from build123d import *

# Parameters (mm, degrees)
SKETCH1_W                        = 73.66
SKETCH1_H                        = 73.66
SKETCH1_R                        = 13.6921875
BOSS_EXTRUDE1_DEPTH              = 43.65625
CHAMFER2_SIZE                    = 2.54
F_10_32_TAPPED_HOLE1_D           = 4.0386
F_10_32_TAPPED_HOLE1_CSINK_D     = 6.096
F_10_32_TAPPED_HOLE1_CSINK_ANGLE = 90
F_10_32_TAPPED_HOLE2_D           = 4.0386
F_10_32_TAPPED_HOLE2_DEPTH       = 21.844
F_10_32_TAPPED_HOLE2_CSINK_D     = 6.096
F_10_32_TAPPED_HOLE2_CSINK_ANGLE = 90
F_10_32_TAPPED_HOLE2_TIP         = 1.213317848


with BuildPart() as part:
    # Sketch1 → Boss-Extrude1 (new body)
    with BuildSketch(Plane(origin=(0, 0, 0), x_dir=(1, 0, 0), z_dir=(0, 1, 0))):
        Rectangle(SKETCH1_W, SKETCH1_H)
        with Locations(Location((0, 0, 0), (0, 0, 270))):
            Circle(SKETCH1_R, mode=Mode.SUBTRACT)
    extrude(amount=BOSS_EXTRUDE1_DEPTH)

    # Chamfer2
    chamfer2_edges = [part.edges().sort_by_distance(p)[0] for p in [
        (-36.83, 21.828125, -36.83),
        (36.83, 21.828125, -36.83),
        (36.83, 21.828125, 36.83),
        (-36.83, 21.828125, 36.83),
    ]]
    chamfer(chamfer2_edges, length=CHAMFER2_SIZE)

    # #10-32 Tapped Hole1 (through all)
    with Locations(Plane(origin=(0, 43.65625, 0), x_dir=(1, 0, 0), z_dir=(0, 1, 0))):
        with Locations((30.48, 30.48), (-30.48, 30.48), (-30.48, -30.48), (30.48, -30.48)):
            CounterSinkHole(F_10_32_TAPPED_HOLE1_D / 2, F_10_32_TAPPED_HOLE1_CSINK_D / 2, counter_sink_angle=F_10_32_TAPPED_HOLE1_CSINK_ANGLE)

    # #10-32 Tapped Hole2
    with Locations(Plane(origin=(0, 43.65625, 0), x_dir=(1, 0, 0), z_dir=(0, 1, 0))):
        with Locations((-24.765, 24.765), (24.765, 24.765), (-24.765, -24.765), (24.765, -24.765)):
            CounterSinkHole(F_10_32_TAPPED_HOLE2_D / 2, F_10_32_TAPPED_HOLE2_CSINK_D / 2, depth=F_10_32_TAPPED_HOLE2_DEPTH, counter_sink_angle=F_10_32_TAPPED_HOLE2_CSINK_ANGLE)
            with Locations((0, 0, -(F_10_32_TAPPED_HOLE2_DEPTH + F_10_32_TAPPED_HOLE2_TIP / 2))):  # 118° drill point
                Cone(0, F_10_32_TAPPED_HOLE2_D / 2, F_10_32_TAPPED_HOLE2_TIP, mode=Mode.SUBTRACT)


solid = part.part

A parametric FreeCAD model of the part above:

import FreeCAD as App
import Part
import Sketcher
from FreeCAD import Vector
Q = App.Units.Quantity


def edges_at(feature, points):
    """Names of the edges that pass closest to the given points."""
    edges = feature.Shape.Edges
    near = lambda p: min(range(len(edges)), key=lambda i: edges[i].distToShape(Part.Vertex(*p))[0])
    return sorted({f"Edge{near(p) + 1}" for p in points})

doc = App.newDocument("Part")
body = doc.addObject("PartDesign::Body", "Body")

sketch1 = doc.addObject("Sketcher::SketchObject", "Sketch")
body.addObject(sketch1)
sketch1.AttachmentSupport = (doc.XZ_Plane, [""])
sketch1.MapMode = "FlatFace"
sketch1.addGeometry(Part.LineSegment(Vector(-36.83, -36.83, 0), Vector(-36.83, 36.83, 0)), False)
sketch1.addGeometry(Part.LineSegment(Vector(-36.83, 36.83, 0), Vector(36.83, 36.83, 0)), False)
sketch1.addGeometry(Part.LineSegment(Vector(36.83, 36.83, 0), Vector(36.83, -36.83, 0)), False)
sketch1.addGeometry(Part.LineSegment(Vector(36.83, -36.83, 0), Vector(-36.83, -36.83, 0)), False)
sketch1.addGeometry(Part.Circle(Vector(0, 0, 0), Vector(0, 0, 1), 13.692187), False)
sketch1.addConstraint(Sketcher.Constraint("Coincident", 0, 2, 1, 1))
sketch1.addConstraint(Sketcher.Constraint("Coincident", 1, 2, 2, 1))
sketch1.addConstraint(Sketcher.Constraint("Coincident", 2, 2, 3, 1))
sketch1.addConstraint(Sketcher.Constraint("Coincident", 3, 2, 0, 1))
sketch1.addConstraint(Sketcher.Constraint("Vertical", 0))
sketch1.addConstraint(Sketcher.Constraint("Horizontal", 1))
sketch1.addConstraint(Sketcher.Constraint("Vertical", 2))
sketch1.addConstraint(Sketcher.Constraint("Horizontal", 3))
sketch1.addConstraint(Sketcher.Constraint("Coincident", 4, 3, -1, 1))
sketch1.addConstraint(Sketcher.Constraint("Symmetric", 0, 2, 2, 2, -1, 1))
sketch1.addConstraint(Sketcher.Constraint("Equal", 3, 0))
sketch1.addConstraint(Sketcher.Constraint("Diameter", 4, Q("1.078125 in")))
sketch1.addConstraint(Sketcher.Constraint("DistanceX", 1, 1, 1, 2, Q("2.9 in")))
pad1 = doc.addObject("PartDesign::Pad", "Pad")
body.addObject(pad1)
pad1.Profile = sketch1
pad1.Length = Q("1.71875 in")
pad1.Reversed = True
doc.recompute()

chamfer = doc.addObject("PartDesign::Chamfer", "Chamfer")
body.addObject(chamfer)
chamfer.Base = (pad1, edges_at(pad1, [
    (-36.83, 21.828, -36.83),
    (36.83, 21.828, -36.83),
    (36.83, 21.828, 36.83),
    (-36.83, 21.828, 36.83),
]))
chamfer.Size = Q("0.1 in")

sketch2 = doc.addObject("Sketcher::SketchObject", "Sketch001")
body.addObject(sketch2)
sketch2.AttachmentSupport = (doc.XZ_Plane, [""])
sketch2.MapMode = "FlatFace"
sketch2.AttachmentOffset = App.Placement(Vector(0, 0, -1.71875 * 25.4), App.Rotation())
sketch2.addGeometry(Part.Circle(Vector(30.48, -30.48, 0), Vector(0, 0, 1), 2.0193), False)
sketch2.addGeometry(Part.Circle(Vector(-30.48, -30.48, 0), Vector(0, 0, 1), 2.0193), False)
sketch2.addGeometry(Part.Circle(Vector(-30.48, 30.48, 0), Vector(0, 0, 1), 2.0193), False)
sketch2.addGeometry(Part.Circle(Vector(30.48, 30.48, 0), Vector(0, 0, 1), 2.0193), False)
sketch2.addConstraint(Sketcher.Constraint("Equal", 0, 1))
sketch2.addConstraint(Sketcher.Constraint("Equal", 1, 2))
sketch2.addConstraint(Sketcher.Constraint("Equal", 2, 3))
sketch2.addConstraint(Sketcher.Constraint("Symmetric", 0, 3, 2, 3, -1, 1))
sketch2.addConstraint(Sketcher.Constraint("Symmetric", 1, 3, 3, 3, -1, 1))
sketch2.addConstraint(Sketcher.Constraint("Symmetric", 0, 3, 1, 3, -2))
sketch2.addConstraint(Sketcher.Constraint("Diameter", 0, Q("0.159 in")))
sketch2.addConstraint(Sketcher.Constraint("DistanceX", -1, 1, 0, 3, Q("1.2 in")))
sketch2.addConstraint(Sketcher.Constraint("DistanceY", 0, 3, -1, 1, Q("1.2 in")))
doc.recompute()
hole = doc.addObject("PartDesign::Hole", "Hole")
body.addObject(hole)
hole.Profile = sketch2
hole.ThreadType = "None"
hole.Diameter = Q("0.159 in")
hole.DepthType = "ThroughAll"
hole.HoleCutType = "Countersink"
hole.HoleCutDiameter = Q("0.24 in")
hole.HoleCutCountersinkAngle = 90
hole.Reversed = True

sketch3 = doc.addObject("Sketcher::SketchObject", "Sketch002")
body.addObject(sketch3)
sketch3.AttachmentSupport = (doc.XZ_Plane, [""])
sketch3.MapMode = "FlatFace"
sketch3.AttachmentOffset = App.Placement(Vector(0, 0, -1.71875 * 25.4), App.Rotation())
sketch3.addGeometry(Part.Circle(Vector(-24.765, -24.765, 0), Vector(0, 0, 1), 2.0193), False)
sketch3.addGeometry(Part.Circle(Vector(24.765, -24.765, 0), Vector(0, 0, 1), 2.0193), False)
sketch3.addGeometry(Part.Circle(Vector(-24.765, 24.765, 0), Vector(0, 0, 1), 2.0193), False)
sketch3.addGeometry(Part.Circle(Vector(24.765, 24.765, 0), Vector(0, 0, 1), 2.0193), False)
sketch3.addConstraint(Sketcher.Constraint("Equal", 0, 1))
sketch3.addConstraint(Sketcher.Constraint("Equal", 1, 2))
sketch3.addConstraint(Sketcher.Constraint("Equal", 2, 3))
sketch3.addConstraint(Sketcher.Constraint("Symmetric", 1, 3, 2, 3, -1, 1))
sketch3.addConstraint(Sketcher.Constraint("Symmetric", 0, 3, 3, 3, -1, 1))
sketch3.addConstraint(Sketcher.Constraint("Symmetric", 0, 3, 1, 3, -2))
sketch3.addConstraint(Sketcher.Constraint("Diameter", 0, Q("0.159 in")))
sketch3.addConstraint(Sketcher.Constraint("DistanceX", 0, 3, 1, 3, Q("1.95 in")))
sketch3.addConstraint(Sketcher.Constraint("DistanceY", 0, 3, 2, 3, Q("1.95 in")))
doc.recompute()
hole2 = doc.addObject("PartDesign::Hole", "Hole001")
body.addObject(hole2)
hole2.Profile = sketch3
hole2.ThreadType = "None"
hole2.Diameter = Q("0.159 in")
hole2.DepthType = "Dimension"
hole2.Depth = Q("0.86 in")
hole2.DrillPoint = "Angled"
hole2.DrillPointAngle = 118
hole2.HoleCutType = "Countersink"
hole2.HoleCutDiameter = Q("0.24 in")
hole2.HoleCutCountersinkAngle = 90
hole2.Reversed = True

doc.recompute()
